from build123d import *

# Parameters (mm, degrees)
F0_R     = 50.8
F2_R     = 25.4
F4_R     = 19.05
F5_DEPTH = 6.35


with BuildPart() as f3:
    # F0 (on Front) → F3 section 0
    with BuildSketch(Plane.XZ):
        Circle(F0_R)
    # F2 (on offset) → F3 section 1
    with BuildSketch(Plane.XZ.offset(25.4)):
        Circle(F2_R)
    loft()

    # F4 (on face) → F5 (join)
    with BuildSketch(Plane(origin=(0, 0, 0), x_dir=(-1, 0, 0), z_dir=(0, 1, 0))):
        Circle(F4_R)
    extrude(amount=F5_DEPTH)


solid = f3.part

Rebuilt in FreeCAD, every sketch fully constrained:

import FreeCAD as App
import Part
import Sketcher
Q = App.Units.Quantity

doc = App.newDocument("Part")
body = doc.addObject("PartDesign::Body", "Body")

sketch1 = body.newObject("Sketcher::SketchObject", "Sketch")
sketch1.AttachmentSupport = (doc.getObject("XZ_Plane"), [""])
sketch1.MapMode = "FlatFace"
sketch1.addGeometry(Part.Circle(App.Vector(0, 0, 0), App.Vector(0, 0, 1), 51), False)
sketch1.addConstraint([
    Sketcher.Constraint("Coincident", 0, 3, -1, 1),
    Sketcher.Constraint("Diameter", 0, Q("4 in")),
])

sketch2 = body.newObject("Sketcher::SketchObject", "Sketch001")
sketch2.AttachmentSupport = (doc.getObject("XZ_Plane"), [""])
sketch2.MapMode = "FlatFace"
sketch2.AttachmentOffset = App.Placement(App.Vector(0, 0, 1 * 25.4), App.Rotation())
sketch2.addGeometry(Part.Circle(App.Vector(0, 0, 0), App.Vector(0, 0, 1), 25), False)
sketch2.addConstraint([
    Sketcher.Constraint("Coincident", 0, 3, -1, 1),
    Sketcher.Constraint("Diameter", 0, Q("2 in")),
])

additiveloft = body.newObject("PartDesign::AdditiveLoft", "AdditiveLoft")
additiveloft.Profile = sketch1
additiveloft.Sections = [sketch2]

sketch3 = body.newObject("Sketcher::SketchObject", "Sketch002")
sketch3.AttachmentSupport = (doc.getObject("XZ_Plane"), [""])
sketch3.MapMode = "FlatFace"
sketch3.addGeometry(Part.Circle(App.Vector(0, 0, 0), App.Vector(0, 0, 1), 19), False)
sketch3.addConstraint([
    Sketcher.Constraint("Coincident", 0, 3, -1, 1),
    Sketcher.Constraint("Diameter", 0, Q("1.5 in")),
])
pad1 = body.newObject("PartDesign::Pad", "Pad")
pad1.Profile = sketch3
pad1.Length = Q("0.25 in")
pad1.Reversed = True

doc.recompute()
